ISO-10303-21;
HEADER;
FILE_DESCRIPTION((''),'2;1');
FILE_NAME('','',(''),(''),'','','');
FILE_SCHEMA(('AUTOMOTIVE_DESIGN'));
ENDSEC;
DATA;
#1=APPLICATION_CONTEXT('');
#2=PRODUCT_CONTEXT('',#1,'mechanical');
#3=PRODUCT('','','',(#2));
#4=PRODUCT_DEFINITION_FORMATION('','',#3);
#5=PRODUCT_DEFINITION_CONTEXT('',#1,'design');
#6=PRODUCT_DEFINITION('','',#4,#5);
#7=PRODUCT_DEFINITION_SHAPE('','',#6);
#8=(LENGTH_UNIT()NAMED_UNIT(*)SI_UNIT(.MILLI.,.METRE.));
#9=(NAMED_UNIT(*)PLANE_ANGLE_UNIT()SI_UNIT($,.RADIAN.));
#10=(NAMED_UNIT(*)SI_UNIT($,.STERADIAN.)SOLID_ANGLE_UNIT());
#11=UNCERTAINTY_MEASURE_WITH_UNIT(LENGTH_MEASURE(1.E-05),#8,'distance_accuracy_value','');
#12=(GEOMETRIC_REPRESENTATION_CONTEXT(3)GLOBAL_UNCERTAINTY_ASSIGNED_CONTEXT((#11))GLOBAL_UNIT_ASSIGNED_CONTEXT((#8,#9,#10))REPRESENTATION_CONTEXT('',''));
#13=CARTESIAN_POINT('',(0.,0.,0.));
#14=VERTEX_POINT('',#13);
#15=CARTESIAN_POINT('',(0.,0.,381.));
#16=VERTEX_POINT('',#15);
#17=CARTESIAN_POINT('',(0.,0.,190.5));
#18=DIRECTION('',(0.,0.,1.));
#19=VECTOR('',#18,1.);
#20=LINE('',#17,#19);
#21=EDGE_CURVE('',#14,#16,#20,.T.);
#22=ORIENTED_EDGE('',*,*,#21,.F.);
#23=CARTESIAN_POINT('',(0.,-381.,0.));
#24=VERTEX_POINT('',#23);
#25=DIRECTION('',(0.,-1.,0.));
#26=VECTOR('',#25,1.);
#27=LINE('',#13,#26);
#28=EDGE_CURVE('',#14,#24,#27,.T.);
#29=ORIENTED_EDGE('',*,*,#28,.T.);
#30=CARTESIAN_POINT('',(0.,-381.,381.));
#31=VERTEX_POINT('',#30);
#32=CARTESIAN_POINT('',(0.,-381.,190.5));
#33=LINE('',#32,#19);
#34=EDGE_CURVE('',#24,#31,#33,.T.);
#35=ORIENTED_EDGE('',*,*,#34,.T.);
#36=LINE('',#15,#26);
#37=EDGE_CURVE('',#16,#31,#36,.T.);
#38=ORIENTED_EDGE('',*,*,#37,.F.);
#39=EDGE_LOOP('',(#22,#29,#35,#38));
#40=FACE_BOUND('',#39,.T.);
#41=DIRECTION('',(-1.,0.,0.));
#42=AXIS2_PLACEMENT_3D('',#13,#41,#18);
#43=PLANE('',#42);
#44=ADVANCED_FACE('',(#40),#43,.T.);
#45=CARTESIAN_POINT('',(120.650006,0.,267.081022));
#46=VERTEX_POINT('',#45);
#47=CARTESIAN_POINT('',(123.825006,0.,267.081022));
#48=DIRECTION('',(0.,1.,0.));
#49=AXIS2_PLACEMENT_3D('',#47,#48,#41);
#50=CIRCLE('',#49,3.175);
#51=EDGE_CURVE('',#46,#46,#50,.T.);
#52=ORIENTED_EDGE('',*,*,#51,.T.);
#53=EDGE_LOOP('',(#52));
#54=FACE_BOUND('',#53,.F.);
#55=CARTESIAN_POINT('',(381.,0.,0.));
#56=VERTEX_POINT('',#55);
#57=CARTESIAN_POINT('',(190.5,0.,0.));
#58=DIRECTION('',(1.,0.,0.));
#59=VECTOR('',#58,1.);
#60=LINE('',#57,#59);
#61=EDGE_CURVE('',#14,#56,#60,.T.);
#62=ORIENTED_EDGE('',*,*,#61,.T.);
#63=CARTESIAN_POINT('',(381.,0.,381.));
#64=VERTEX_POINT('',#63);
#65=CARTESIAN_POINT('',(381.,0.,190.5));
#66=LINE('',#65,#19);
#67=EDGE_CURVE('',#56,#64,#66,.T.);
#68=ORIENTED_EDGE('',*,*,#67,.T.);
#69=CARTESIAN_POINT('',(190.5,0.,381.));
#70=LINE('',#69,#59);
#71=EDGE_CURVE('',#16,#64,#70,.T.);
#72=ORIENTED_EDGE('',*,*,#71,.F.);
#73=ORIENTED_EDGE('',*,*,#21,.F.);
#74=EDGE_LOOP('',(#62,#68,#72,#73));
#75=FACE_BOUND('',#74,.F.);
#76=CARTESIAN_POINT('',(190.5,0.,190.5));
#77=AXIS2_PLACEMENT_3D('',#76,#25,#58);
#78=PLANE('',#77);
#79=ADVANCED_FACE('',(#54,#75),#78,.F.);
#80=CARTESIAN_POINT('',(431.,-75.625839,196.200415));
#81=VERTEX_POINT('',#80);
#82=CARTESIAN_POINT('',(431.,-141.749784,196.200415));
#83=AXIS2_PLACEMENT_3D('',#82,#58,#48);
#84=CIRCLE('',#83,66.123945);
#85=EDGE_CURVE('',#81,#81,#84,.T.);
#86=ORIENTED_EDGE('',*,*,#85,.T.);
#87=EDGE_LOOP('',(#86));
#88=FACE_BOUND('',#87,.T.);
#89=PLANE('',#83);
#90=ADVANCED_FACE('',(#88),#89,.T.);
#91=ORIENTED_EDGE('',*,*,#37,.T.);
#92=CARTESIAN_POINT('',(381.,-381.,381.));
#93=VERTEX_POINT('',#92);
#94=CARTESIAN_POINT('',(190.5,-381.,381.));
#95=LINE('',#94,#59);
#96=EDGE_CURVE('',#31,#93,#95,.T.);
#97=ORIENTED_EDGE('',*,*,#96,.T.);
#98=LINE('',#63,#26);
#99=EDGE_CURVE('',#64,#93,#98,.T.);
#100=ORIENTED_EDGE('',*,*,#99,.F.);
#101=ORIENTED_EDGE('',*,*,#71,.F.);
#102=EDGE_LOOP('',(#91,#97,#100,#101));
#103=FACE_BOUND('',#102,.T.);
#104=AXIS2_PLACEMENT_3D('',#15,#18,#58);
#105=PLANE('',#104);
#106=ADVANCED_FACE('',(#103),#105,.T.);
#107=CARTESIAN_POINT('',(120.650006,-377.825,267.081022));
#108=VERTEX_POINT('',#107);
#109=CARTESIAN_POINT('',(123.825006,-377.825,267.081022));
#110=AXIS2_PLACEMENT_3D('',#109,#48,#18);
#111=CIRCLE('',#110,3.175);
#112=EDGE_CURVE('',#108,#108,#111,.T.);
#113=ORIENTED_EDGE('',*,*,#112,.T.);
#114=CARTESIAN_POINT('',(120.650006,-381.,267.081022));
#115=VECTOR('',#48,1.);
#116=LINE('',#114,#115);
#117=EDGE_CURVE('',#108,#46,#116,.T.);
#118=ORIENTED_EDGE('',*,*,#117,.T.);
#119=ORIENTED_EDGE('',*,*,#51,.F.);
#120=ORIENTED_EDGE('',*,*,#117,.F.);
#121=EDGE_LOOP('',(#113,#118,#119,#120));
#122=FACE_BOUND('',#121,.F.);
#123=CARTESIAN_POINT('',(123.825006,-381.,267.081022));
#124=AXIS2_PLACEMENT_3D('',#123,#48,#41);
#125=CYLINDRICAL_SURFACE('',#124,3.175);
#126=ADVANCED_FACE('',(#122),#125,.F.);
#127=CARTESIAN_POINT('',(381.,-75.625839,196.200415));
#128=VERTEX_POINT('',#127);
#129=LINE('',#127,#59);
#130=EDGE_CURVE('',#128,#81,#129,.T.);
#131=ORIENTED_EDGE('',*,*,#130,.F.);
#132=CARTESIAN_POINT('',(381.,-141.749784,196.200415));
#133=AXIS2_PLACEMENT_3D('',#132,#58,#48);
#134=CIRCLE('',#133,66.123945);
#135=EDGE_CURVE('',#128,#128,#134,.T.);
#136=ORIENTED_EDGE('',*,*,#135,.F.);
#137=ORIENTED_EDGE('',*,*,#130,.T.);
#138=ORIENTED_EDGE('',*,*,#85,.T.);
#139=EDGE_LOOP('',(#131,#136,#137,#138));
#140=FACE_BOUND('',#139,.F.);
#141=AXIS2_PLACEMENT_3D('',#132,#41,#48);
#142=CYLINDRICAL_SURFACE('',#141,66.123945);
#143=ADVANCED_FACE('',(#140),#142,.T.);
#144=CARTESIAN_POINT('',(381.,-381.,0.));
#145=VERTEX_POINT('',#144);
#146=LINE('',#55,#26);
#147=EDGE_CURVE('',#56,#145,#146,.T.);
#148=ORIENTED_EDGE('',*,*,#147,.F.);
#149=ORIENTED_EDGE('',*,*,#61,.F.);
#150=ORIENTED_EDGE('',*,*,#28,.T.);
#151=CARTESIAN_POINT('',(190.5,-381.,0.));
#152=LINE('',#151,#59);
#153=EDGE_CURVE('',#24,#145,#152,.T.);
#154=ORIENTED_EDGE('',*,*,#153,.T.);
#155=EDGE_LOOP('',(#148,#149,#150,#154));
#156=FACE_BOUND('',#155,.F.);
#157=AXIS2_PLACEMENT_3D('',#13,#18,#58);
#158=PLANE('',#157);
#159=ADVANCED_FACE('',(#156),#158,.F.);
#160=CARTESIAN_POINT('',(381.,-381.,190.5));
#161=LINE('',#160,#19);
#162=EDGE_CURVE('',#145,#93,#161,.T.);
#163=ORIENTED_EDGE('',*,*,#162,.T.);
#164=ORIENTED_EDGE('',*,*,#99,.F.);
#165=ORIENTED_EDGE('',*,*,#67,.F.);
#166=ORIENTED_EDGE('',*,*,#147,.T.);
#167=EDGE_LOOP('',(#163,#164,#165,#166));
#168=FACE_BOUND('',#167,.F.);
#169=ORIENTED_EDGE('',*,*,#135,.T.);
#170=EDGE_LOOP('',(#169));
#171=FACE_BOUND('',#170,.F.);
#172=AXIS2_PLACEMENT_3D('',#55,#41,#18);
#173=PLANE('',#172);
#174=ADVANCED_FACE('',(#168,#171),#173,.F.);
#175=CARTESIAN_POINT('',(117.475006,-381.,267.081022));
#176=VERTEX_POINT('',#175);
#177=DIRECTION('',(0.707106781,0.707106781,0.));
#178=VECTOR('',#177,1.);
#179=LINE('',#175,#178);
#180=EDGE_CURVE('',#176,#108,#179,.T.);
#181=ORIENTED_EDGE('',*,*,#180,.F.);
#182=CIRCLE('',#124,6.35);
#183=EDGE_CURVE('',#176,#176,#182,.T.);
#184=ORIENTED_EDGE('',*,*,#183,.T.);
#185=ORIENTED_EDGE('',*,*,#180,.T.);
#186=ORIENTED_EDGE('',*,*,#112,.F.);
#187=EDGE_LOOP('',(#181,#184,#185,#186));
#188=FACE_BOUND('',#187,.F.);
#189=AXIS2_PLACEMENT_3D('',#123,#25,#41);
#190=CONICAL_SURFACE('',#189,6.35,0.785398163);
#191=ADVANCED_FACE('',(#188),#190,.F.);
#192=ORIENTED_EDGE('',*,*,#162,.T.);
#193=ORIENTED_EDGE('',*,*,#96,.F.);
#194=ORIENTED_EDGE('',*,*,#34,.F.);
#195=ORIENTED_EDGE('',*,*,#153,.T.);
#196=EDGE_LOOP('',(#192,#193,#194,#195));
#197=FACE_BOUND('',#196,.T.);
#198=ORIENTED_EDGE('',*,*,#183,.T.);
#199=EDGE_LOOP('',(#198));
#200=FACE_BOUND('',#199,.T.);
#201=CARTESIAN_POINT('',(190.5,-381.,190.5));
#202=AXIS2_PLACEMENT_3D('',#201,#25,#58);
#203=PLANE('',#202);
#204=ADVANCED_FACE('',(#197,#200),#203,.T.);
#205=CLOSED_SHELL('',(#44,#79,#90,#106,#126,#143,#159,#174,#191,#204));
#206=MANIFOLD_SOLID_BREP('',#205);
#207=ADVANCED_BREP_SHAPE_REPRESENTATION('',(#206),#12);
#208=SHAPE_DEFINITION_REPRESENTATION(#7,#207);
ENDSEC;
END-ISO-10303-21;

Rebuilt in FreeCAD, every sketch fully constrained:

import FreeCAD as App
import Part
import Sketcher
from FreeCAD import Vector
Q = App.Units.Quantity


def add_polygon(sketch, points):
    """Adds a closed chain of lines whose ends are joined by coincident constraints."""
    first, n = sketch.GeometryCount, len(points)
    for a, b in zip(points, points[1:] + points[:1]):
        sketch.addGeometry(Part.LineSegment(App.Vector(*a, 0), App.Vector(*b, 0)), False)
    for i in range(n):
        sketch.addConstraint(Sketcher.Constraint("Coincident", first + i, 2, first + (i + 1) % n, 1))

doc = App.newDocument("Part")
body = doc.addObject("PartDesign::Body", "Body")

sketch1 = doc.addObject("Sketcher::SketchObject", "Sketch")
body.addObject(sketch1)
sketch1.AttachmentSupport = (doc.XZ_Plane, [""])
sketch1.MapMode = "FlatFace"
add_polygon(sketch1, [(0, 381), (0, 0), (381, 0), (381, 381)])
sketch1.addConstraint([
    Sketcher.Constraint("Vertical", 0),
    Sketcher.Constraint("Horizontal", 1),
    Sketcher.Constraint("Vertical", 2),
    Sketcher.Constraint("Horizontal", 3),
    Sketcher.Constraint("Coincident", 0, 2, -1, 1),
    Sketcher.Constraint("Equal", 3, 0),
    Sketcher.Constraint("DistanceX", 1, 1, 1, 2, Q("15 in")),
])
pad1 = doc.addObject("PartDesign::Pad", "Pad")
body.addObject(pad1)
pad1.Profile = sketch1
pad1.Length = Q("15 in")

sketch2 = doc.addObject("Sketcher::SketchObject", "Sketch001")
body.addObject(sketch2)
sketch2.AttachmentSupport = (doc.XZ_Plane, [""])
sketch2.MapMode = "FlatFace"
sketch2.AttachmentOffset = App.Placement(Vector(0, 0, 15 * 25.4), App.Rotation())
sketch2.addGeometry(Part.Circle(Vector(123.825006, 267.081022, 0), Vector(0, 0, 1), 3.175), False)
sketch2.addConstraint([
    Sketcher.Constraint("Diameter", 0, Q("0.25 in")),
    Sketcher.Constraint("DistanceY", -1, 1, 0, 3, 267.081022),
    Sketcher.Constraint("DistanceX", -1, 1, 0, 3, 123.825006),
])
doc.recompute()
hole = doc.addObject("PartDesign::Hole", "Hole")
body.addObject(hole)
hole.Profile = sketch2
hole.ThreadType = "None"
hole.Diameter = Q("0.25 in")
hole.DepthType = "ThroughAll"
hole.HoleCutType = "Countersink"
hole.HoleCutDiameter = Q("0.5 in")
hole.HoleCutCountersinkAngle = 90

sketch3 = doc.addObject("Sketcher::SketchObject", "Sketch002")
body.addObject(sketch3)
sketch3.AttachmentSupport = (doc.YZ_Plane, [""])
sketch3.MapMode = "FlatFace"
sketch3.AttachmentOffset = App.Placement(Vector(0, 0, 15 * 25.4), App.Rotation())
sketch3.addGeometry(Part.Circle(Vector(-141.749784, 196.200415, 0), Vector(0, 0, 1), 66.123945), False)
sketch3.addConstraint([
    Sketcher.Constraint("Diameter", 0, 132.24789),
    Sketcher.Constraint("DistanceX", 0, 3, -1, 1, Q("5.5807002 in")),
    Sketcher.Constraint("DistanceY", -1, 1, 0, 3, 196.200415),
])
pad2 = doc.addObject("PartDesign::Pad", "Pad001")
body.addObject(pad2)
pad2.Profile = sketch3
pad2.Length = 50

doc.recompute()
